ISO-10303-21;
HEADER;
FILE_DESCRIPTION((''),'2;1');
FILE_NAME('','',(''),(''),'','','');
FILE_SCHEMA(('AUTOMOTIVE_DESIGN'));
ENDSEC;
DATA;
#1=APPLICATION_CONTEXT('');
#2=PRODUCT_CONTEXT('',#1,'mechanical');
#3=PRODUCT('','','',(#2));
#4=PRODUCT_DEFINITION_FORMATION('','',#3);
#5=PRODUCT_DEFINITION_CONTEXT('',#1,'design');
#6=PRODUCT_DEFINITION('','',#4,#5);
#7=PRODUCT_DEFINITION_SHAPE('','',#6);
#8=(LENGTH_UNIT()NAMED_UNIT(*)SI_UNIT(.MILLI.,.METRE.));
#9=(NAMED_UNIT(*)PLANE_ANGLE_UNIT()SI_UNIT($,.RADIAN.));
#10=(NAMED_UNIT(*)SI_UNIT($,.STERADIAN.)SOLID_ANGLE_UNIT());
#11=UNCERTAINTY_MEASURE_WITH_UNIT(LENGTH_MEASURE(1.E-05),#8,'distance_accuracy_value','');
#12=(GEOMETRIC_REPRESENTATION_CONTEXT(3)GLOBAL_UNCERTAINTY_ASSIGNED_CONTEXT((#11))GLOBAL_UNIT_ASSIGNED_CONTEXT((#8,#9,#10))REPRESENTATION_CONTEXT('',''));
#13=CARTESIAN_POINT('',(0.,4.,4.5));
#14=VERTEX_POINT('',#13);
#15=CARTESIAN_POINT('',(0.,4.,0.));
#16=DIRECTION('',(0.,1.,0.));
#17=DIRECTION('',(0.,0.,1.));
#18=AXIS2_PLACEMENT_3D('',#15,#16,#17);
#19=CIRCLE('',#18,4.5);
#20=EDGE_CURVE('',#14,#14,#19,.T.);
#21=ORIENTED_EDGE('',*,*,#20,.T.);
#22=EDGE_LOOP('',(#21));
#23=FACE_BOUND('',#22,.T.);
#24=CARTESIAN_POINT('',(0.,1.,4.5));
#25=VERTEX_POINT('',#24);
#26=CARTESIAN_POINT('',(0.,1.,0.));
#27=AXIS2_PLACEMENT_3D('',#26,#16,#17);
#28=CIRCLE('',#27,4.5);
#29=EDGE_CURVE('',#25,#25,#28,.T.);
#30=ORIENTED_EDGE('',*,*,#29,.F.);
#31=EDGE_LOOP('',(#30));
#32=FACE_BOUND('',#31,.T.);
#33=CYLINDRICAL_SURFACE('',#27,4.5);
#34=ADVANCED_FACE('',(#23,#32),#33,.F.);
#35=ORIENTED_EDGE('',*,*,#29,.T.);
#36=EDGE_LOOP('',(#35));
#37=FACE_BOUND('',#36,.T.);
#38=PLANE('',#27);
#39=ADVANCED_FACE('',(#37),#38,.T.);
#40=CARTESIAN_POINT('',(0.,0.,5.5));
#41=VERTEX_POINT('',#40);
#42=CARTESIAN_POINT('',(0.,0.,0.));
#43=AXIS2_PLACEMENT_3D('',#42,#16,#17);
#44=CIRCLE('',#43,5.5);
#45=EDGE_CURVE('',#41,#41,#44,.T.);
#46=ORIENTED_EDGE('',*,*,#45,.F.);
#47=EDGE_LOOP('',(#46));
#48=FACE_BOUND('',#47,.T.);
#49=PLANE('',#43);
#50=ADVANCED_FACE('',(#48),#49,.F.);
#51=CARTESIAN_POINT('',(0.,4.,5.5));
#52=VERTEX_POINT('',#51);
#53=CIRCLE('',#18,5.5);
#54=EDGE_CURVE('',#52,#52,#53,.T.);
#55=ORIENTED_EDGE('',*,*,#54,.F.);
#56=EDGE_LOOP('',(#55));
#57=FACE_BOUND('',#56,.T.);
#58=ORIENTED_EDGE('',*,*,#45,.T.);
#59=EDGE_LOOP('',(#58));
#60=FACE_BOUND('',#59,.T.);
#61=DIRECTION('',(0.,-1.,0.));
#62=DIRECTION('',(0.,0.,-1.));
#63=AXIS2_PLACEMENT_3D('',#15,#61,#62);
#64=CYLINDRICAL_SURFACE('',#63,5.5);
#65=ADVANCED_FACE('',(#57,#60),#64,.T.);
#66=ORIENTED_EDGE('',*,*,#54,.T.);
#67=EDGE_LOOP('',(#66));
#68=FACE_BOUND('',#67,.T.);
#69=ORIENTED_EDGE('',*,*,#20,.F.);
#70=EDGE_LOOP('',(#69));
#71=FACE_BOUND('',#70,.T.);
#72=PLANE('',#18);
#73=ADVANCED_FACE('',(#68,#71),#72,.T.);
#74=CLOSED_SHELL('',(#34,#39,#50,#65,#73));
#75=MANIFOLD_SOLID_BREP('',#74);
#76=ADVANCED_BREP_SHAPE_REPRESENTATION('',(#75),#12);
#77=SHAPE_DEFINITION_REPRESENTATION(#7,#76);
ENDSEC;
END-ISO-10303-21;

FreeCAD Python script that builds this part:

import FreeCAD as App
import Part
import Sketcher

V = App.Vector
Q = App.Units.Quantity

doc = App.newDocument("Part")
params = doc.addObject("Spreadsheet::Sheet", "Params")
for row, (alias, value) in enumerate([
    ("sketch1_diameter", "11 mm"),
    ("pad1_length", "4 mm"),
    ("sketch2_diameter", "9 mm"),
    ("pocket1_length", "3 mm"),
], start=1):
    params.set(f"A{row}", alias)
    params.set(f"B{row}", "=" + value)
    params.setAlias(f"B{row}", alias)

body = doc.addObject("PartDesign::Body", "Body")

# Sketch on XZ plane
sketch1 = doc.addObject("Sketcher::SketchObject", "Sketch")
body.addObject(sketch1)
sketch1.AttachmentSupport = (doc.XZ_Plane, [""])
sketch1.MapMode = "FlatFace"
sketch1.addGeometry(Part.Circle(V(0, 0, 0), V(0, 0, 1), 6), False)
sketch1.addConstraint(Sketcher.Constraint("Coincident", 0, 3, -1, 1))
sketch1.addConstraint(Sketcher.Constraint("Diameter", 0, Q("11 mm")))
sketch1.setExpression("Constraints[1]", "Params.sketch1_diameter")
pad1 = doc.addObject("PartDesign::Pad", "Pad")
body.addObject(pad1)
pad1.Profile = sketch1
pad1.setExpression("Length", "Params.pad1_length")
pad1.Reversed = True

# Sketch on XZ plane
sketch2 = doc.addObject("Sketcher::SketchObject", "Sketch001")
body.addObject(sketch2)
sketch2.AttachmentSupport = (doc.XZ_Plane, [""])
sketch2.MapMode = "FlatFace"
sketch2.AttachmentOffset = App.Placement(V(0, 0, -4), App.Rotation())
sketch2.addGeometry(Part.Circle(V(0, 0, 0), V(0, 0, 1), 4.5), False)
sketch2.addConstraint(Sketcher.Constraint("Coincident", 0, 3, -1, 1))
sketch2.addConstraint(Sketcher.Constraint("Diameter", 0, Q("9 mm")))
sketch2.setExpression("Constraints[1]", "Params.sketch2_diameter")
pocket1 = doc.addObject("PartDesign::Pocket", "Pocket")
body.addObject(pocket1)
pocket1.Profile = sketch2
pocket1.setExpression("Length", "Params.pocket1_length")
pocket1.Reversed = True

doc.recompute()
